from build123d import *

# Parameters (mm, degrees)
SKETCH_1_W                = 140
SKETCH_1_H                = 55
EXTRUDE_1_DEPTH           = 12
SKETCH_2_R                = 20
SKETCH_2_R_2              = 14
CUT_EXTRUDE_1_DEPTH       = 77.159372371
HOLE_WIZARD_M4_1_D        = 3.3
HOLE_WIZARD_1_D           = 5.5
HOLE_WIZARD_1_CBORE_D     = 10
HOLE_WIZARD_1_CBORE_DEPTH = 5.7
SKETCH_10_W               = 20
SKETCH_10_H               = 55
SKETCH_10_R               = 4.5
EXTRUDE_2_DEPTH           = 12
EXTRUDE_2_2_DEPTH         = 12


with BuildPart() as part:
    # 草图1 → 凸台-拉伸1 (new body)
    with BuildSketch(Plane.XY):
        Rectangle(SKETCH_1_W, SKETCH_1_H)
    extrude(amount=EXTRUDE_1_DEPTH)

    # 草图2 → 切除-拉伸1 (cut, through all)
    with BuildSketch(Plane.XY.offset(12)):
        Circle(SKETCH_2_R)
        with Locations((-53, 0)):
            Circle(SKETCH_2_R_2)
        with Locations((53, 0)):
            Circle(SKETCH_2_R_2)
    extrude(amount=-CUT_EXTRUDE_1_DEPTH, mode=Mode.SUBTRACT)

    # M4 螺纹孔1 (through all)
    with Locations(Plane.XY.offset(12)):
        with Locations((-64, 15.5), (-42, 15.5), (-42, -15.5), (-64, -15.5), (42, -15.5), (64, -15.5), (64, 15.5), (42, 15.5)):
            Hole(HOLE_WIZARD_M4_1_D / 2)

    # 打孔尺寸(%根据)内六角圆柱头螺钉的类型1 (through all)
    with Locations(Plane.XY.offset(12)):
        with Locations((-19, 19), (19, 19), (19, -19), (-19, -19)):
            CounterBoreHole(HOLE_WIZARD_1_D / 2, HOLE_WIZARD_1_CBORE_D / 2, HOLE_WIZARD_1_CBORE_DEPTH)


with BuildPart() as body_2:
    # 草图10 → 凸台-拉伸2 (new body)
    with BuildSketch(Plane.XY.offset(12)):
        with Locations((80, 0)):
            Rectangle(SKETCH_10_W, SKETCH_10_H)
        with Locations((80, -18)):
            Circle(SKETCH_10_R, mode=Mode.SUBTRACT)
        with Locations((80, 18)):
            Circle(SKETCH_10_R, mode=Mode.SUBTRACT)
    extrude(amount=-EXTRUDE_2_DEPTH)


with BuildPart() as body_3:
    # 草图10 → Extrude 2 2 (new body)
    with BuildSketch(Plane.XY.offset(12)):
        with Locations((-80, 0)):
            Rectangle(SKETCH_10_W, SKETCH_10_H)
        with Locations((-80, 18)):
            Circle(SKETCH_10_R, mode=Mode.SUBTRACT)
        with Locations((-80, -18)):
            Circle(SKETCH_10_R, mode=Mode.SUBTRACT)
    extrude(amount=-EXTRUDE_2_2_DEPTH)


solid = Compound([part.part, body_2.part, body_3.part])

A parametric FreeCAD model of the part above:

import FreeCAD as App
import Part
import Sketcher
Q = App.Units.Quantity


def add_polygon(sketch, points):
    """Adds a closed chain of lines whose ends are joined by coincident constraints."""
    first, n = sketch.GeometryCount, len(points)
    for a, b in zip(points, points[1:] + points[:1]):
        sketch.addGeometry(Part.LineSegment(App.Vector(*a, 0), App.Vector(*b, 0)), False)
    for i in range(n):
        sketch.addConstraint(Sketcher.Constraint("Coincident", first + i, 2, first + (i + 1) % n, 1))

doc = App.newDocument("Part")
body = doc.addObject("PartDesign::Body", "Body")

# Sketch on XY plane
sketch1 = doc.addObject("Sketcher::SketchObject", "Sketch")
body.addObject(sketch1)
sketch1.AttachmentSupport = (doc.XY_Plane, [""])
sketch1.MapMode = "FlatFace"
add_polygon(sketch1, [(-70, 28), (-70, -28), (70, -28), (70, 28)])  # lines 0-3
sketch1.addConstraint([
    Sketcher.Constraint("Vertical", 0),
    Sketcher.Constraint("Horizontal", 1),
    Sketcher.Constraint("Vertical", 2),
    Sketcher.Constraint("Horizontal", 3),
    Sketcher.Constraint("Symmetric", 0, 2, 2, 2, -1, 1),
    Sketcher.Constraint("DistanceX", 1, 1, 1, 2, Q("140 mm")),
    Sketcher.Constraint("DistanceY", 0, 2, 0, 1, Q("55 mm")),
])
pad1 = doc.addObject("PartDesign::Pad", "Pad")
body.addObject(pad1)
pad1.Profile = sketch1
pad1.Length = 12

# Sketch on XY plane
sketch2 = doc.addObject("Sketcher::SketchObject", "Sketch001")
body.addObject(sketch2)
sketch2.AttachmentSupport = (doc.XY_Plane, [""])
sketch2.MapMode = "FlatFace"
sketch2.AttachmentOffset = App.Placement(App.Vector(0, 0, 12), App.Rotation())
sketch2.addGeometry([
    Part.Circle(App.Vector(0, 0, 0), App.Vector(0, 0, 1), 20),
    Part.Circle(App.Vector(-53, 0, 0), App.Vector(0, 0, 1), 14),
    Part.Circle(App.Vector(53, 0, 0), App.Vector(0, 0, 1), 14),
], False)
sketch2.addConstraint([
    Sketcher.Constraint("Coincident", 0, 3, -1, 1),
    Sketcher.Constraint("Equal", 1, 2),
    Sketcher.Constraint("Symmetric", 1, 3, 2, 3, -1, 1),
    Sketcher.Constraint("PointOnObject", 1, 3, -1),
    Sketcher.Constraint("Diameter", 0, Q("40 mm")),
    Sketcher.Constraint("Diameter", 1, Q("28 mm")),
    Sketcher.Constraint("DistanceX", 1, 3, -1, 1, Q("53 mm")),
])
pocket1 = doc.addObject("PartDesign::Pocket", "Pocket")
body.addObject(pocket1)
pocket1.Profile = sketch2
pocket1.Type = "ThroughAll"

# Sketch on XY plane
sketch3 = doc.addObject("Sketcher::SketchObject", "Sketch002")
body.addObject(sketch3)
sketch3.AttachmentSupport = (doc.XY_Plane, [""])
sketch3.MapMode = "FlatFace"
sketch3.AttachmentOffset = App.Placement(App.Vector(0, 0, 12), App.Rotation())
sketch3.addGeometry([
    Part.Circle(App.Vector(-64, 15.5, 0), App.Vector(0, 0, 1), 1.6),  # 0
    Part.Circle(App.Vector(-42, 15.5, 0), App.Vector(0, 0, 1), 1.6),  # 1
    Part.Circle(App.Vector(-42, -15.5, 0), App.Vector(0, 0, 1), 1.6),  # 2
    Part.Circle(App.Vector(-64, -15.5, 0), App.Vector(0, 0, 1), 1.6),  # 3
    Part.Circle(App.Vector(42, -15.5, 0), App.Vector(0, 0, 1), 1.6),  # 4
    Part.Circle(App.Vector(64, -15.5, 0), App.Vector(0, 0, 1), 1.6),  # 5
    Part.Circle(App.Vector(64, 15.5, 0), App.Vector(0, 0, 1), 1.6),  # 6
    Part.Circle(App.Vector(42, 15.5, 0), App.Vector(0, 0, 1), 1.6),  # 7
], False)
sketch3.addConstraint([
    Sketcher.Constraint("Equal", 0, 1),
    Sketcher.Constraint("Equal", 1, 2),
    Sketcher.Constraint("Equal", 2, 3),
    Sketcher.Constraint("Equal", 3, 4),
    Sketcher.Constraint("Equal", 4, 5),
    Sketcher.Constraint("Equal", 5, 6),
    Sketcher.Constraint("Equal", 6, 7),
    Sketcher.Constraint("Symmetric", 1, 3, 4, 3, -1, 1),
    Sketcher.Constraint("Symmetric", 0, 3, 5, 3, -1, 1),
    Sketcher.Constraint("Symmetric", 3, 3, 6, 3, -1, 1),
    Sketcher.Constraint("Symmetric", 2, 3, 7, 3, -1, 1),
    Sketcher.Constraint("Symmetric", 2, 3, 4, 3, -2),
    Sketcher.Constraint("Symmetric", 3, 3, 5, 3, -2),
    Sketcher.Constraint("Horizontal", 0, 3, 1, 3),
    Sketcher.Constraint("Diameter", 0, Q("3.3 mm")),
    Sketcher.Constraint("DistanceX", 0, 3, -1, 1, Q("64 mm")),
    Sketcher.Constraint("DistanceX", 1, 3, -1, 1, Q("42 mm")),
    Sketcher.Constraint("DistanceY", 2, 3, 1, 3, Q("31 mm")),
])
doc.recompute()
hole = doc.addObject("PartDesign::Hole", "Hole")
body.addObject(hole)
hole.Profile = sketch3
hole.ThreadType = "None"
hole.Diameter = 3.3
hole.DepthType = "ThroughAll"

# Sketch on XY plane
sketch4 = doc.addObject("Sketcher::SketchObject", "Sketch003")
body.addObject(sketch4)
sketch4.AttachmentSupport = (doc.XY_Plane, [""])
sketch4.MapMode = "FlatFace"
sketch4.AttachmentOffset = App.Placement(App.Vector(0, 0, 12), App.Rotation())
sketch4.addGeometry([
    Part.Circle(App.Vector(-19, 19, 0), App.Vector(0, 0, 1), 2.8),
    Part.Circle(App.Vector(19, 19, 0), App.Vector(0, 0, 1), 2.8),
    Part.Circle(App.Vector(19, -19, 0), App.Vector(0, 0, 1), 2.8),
    Part.Circle(App.Vector(-19, -19, 0), App.Vector(0, 0, 1), 2.8),
], False)
sketch4.addConstraint([
    Sketcher.Constraint("Equal", 0, 1),
    Sketcher.Constraint("Equal", 1, 2),
    Sketcher.Constraint("Equal", 2, 3),
    Sketcher.Constraint("Symmetric", 0, 3, 2, 3, -1, 1),
    Sketcher.Constraint("Symmetric", 1, 3, 3, 3, -1, 1),
    Sketcher.Constraint("Symmetric", 0, 3, 1, 3, -2),
    Sketcher.Constraint("Diameter", 0, Q("5.5 mm")),
    Sketcher.Constraint("DistanceX", 0, 3, -1, 1, Q("19 mm")),
    Sketcher.Constraint("DistanceY", -1, 1, 0, 3, Q("19 mm")),
])
doc.recompute()
hole2 = doc.addObject("PartDesign::Hole", "Hole001")
body.addObject(hole2)
hole2.Profile = sketch4
hole2.ThreadType = "None"
hole2.Diameter = 5.5
hole2.DepthType = "ThroughAll"
hole2.HoleCutType = "Counterbore"
hole2.HoleCutDiameter = 10
hole2.HoleCutDepth = 5.7
body2 = doc.addObject("PartDesign::Body", "Body001")

# Sketch on XY plane
sketch5 = doc.addObject("Sketcher::SketchObject", "Sketch004")
body2.addObject(sketch5)
sketch5.AttachmentSupport = (doc.getObject("XY_Plane001"), [""])
sketch5.MapMode = "FlatFace"
sketch5.AttachmentOffset = App.Placement(App.Vector(0, 0, 12), App.Rotation())
add_polygon(sketch5, [(70, 27.5), (70, -27.5), (90, -27.5), (90, 27.5)])  # lines 0-3
sketch5.addGeometry(Part.Circle(App.Vector(80, -18, 0), App.Vector(0, 0, 1), 4.5), False)  # 4
sketch5.addGeometry(Part.Circle(App.Vector(80, 18, 0), App.Vector(0, 0, 1), 4.5), False)  # 5
sketch5.addConstraint([
    Sketcher.Constraint("Vertical", 0),
    Sketcher.Constraint("Horizontal", 1),
    Sketcher.Constraint("Vertical", 2),
    Sketcher.Constraint("Horizontal", 3),
    Sketcher.Constraint("Equal", 4, 5),
    Sketcher.Constraint("Symmetric", 4, 3, 5, 3, -1),
    Sketcher.Constraint("Diameter", 4, Q("9 mm")),
    Sketcher.Constraint("DistanceX", 1, 1, 1, 2, Q("20 mm")),
    Sketcher.Constraint("DistanceY", 0, 2, 0, 1, Q("55 mm")),
    Sketcher.Constraint("DistanceX", -1, 1, 4, 3, Q("80 mm")),
    Sketcher.Constraint("DistanceY", 4, 3, -1, 1, Q("18 mm")),
    Sketcher.Constraint("DistanceX", -1, 1, 0, 2, Q("70 mm")),
    Sketcher.Constraint("DistanceY", 0, 2, -1, 1, Q("27.5 mm")),
])
pad2 = doc.addObject("PartDesign::Pad", "Pad001")
body2.addObject(pad2)
pad2.Profile = sketch5
pad2.Length = 12
pad2.Reversed = True
body3 = doc.addObject("PartDesign::Body", "Body002")

# Sketch on XY plane
sketch6 = doc.addObject("Sketcher::SketchObject", "Sketch005")
body3.addObject(sketch6)
sketch6.AttachmentSupport = (doc.getObject("XY_Plane002"), [""])
sketch6.MapMode = "FlatFace"
sketch6.AttachmentOffset = App.Placement(App.Vector(0, 0, 12), App.Rotation())
add_polygon(sketch6, [(-90, 27.5), (-90, -27.5), (-70, -27.5), (-70, 27.5)])  # lines 0-3
sketch6.addGeometry(Part.Circle(App.Vector(-80, -18, 0), App.Vector(0, 0, 1), 4.5), False)  # 4
sketch6.addGeometry(Part.Circle(App.Vector(-80, 18, 0), App.Vector(0, 0, 1), 4.5), False)  # 5
sketch6.addConstraint([
    Sketcher.Constraint("Vertical", 0),
    Sketcher.Constraint("Horizontal", 1),
    Sketcher.Constraint("Vertical", 2),
    Sketcher.Constraint("Horizontal", 3),
    Sketcher.Constraint("Equal", 4, 5),
    Sketcher.Constraint("Symmetric", 4, 3, 5, 3, -1),
    Sketcher.Constraint("Diameter", 4, Q("9 mm")),
    Sketcher.Constraint("DistanceX", 1, 1, 1, 2, Q("20 mm")),
    Sketcher.Constraint("DistanceY", 0, 2, 0, 1, Q("55 mm")),
    Sketcher.Constraint("DistanceX", 4, 3, -1, 1, Q("80 mm")),
    Sketcher.Constraint("DistanceY", 4, 3, -1, 1, Q("18 mm")),
    Sketcher.Constraint("DistanceX", 0, 2, -1, 1, Q("90 mm")),
    Sketcher.Constraint("DistanceY", 0, 2, -1, 1, Q("27.5 mm")),
])
pad3 = doc.addObject("PartDesign::Pad", "Pad002")
body3.addObject(pad3)
pad3.Profile = sketch6
pad3.Length = 12
pad3.Reversed = True

doc.recompute()
